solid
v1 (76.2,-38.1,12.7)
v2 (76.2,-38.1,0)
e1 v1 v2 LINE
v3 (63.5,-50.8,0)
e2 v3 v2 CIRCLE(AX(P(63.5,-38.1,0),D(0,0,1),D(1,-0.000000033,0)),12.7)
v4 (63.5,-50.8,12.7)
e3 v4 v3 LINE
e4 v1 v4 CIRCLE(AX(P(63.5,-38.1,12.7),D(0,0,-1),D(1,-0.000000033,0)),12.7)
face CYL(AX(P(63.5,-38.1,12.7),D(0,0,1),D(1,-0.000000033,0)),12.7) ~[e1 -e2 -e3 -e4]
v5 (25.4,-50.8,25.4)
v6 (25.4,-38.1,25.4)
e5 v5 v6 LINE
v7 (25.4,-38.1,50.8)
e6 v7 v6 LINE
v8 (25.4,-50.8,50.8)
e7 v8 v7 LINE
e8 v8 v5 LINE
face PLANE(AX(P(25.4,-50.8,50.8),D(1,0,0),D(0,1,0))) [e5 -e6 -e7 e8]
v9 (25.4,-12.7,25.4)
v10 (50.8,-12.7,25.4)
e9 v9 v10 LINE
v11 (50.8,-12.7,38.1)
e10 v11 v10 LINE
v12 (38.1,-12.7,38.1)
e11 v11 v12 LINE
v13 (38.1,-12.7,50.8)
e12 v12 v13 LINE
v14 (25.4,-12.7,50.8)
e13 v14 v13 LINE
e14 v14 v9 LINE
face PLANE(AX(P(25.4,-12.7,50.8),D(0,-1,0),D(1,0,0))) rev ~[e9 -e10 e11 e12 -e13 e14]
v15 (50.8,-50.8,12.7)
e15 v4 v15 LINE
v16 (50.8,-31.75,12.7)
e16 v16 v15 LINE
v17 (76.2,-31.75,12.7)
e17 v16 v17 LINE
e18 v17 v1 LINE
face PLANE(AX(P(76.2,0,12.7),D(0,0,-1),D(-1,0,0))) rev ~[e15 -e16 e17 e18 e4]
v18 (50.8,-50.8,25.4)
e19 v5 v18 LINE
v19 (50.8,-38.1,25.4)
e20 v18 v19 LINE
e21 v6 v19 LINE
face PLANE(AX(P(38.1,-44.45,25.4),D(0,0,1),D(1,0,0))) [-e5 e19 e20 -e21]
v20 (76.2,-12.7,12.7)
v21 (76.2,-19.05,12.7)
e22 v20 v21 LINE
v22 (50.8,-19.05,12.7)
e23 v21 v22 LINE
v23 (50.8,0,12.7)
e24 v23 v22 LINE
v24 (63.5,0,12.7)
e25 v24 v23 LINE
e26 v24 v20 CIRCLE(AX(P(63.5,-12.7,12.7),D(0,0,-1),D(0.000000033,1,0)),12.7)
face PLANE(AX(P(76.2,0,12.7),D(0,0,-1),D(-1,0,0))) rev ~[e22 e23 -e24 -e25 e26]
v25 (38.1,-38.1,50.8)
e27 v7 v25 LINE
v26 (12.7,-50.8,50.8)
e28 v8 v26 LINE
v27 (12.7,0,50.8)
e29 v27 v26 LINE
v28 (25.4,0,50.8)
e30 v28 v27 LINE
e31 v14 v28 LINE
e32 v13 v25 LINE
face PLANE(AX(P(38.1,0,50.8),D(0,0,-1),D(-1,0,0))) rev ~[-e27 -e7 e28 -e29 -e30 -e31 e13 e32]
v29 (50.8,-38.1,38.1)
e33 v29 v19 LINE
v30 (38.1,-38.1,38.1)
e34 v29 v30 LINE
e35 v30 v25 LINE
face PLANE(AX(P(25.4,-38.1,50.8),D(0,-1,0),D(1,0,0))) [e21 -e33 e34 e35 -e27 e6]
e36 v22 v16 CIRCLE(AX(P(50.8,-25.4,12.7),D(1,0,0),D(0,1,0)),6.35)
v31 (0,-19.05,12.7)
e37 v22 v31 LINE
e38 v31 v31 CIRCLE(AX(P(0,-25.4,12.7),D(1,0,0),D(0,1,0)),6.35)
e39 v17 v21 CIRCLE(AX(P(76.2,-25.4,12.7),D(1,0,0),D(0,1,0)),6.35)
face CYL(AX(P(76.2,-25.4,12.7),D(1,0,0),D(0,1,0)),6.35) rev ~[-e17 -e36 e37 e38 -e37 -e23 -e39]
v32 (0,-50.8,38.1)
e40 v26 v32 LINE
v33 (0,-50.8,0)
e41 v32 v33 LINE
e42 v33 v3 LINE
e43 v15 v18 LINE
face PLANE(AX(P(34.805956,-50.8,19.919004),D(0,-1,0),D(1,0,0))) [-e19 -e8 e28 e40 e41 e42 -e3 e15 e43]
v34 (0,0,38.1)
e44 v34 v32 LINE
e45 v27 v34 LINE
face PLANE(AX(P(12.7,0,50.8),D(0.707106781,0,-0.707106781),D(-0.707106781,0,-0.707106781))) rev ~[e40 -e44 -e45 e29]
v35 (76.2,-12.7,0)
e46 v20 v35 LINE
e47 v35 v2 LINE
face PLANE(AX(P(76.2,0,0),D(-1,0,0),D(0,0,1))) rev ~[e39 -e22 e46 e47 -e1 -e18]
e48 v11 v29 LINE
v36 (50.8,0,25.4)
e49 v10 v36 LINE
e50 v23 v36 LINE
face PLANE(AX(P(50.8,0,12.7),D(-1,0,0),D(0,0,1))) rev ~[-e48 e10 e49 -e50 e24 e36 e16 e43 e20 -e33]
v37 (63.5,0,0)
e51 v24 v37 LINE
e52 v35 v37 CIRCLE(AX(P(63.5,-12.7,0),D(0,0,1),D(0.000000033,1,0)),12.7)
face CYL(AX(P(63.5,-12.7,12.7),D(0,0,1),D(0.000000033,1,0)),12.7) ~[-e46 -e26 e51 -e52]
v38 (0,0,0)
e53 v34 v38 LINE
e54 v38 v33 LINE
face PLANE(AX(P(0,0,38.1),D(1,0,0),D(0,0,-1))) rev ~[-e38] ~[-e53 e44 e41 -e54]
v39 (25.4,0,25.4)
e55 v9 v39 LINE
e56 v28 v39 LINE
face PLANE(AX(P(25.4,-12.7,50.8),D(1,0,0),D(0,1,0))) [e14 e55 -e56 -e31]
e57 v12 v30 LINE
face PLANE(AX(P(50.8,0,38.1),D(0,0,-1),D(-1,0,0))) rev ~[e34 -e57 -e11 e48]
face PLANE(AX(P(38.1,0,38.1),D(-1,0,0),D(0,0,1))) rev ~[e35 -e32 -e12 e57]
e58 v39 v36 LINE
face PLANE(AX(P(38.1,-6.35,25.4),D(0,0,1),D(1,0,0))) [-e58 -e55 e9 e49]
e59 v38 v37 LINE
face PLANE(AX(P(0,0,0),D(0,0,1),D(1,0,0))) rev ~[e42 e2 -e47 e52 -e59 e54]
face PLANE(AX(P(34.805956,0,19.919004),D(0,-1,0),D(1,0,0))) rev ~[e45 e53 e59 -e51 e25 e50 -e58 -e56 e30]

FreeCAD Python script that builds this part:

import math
import FreeCAD as App
import Part
import Sketcher
Q = App.Units.Quantity

doc = App.newDocument("Part")
params = doc.addObject("Spreadsheet::Sheet", "Params")
for row, (alias, value) in enumerate([
    ("sketch1_width", "3 in"),
    ("sketch1_width2", "1 in"),
    ("sketch1_width3", "0.5 in"),
    ("pad1_length", "2 in"),
    ("sketch2_width", "1 in"),
    ("sketch2_height", "0.5 in"),
    ("pocket1_length", "1 in"),
    ("sketch3_radius", "0.5 in"),
    ("sketch4_diameter", "0.5 in"),
], start=1):
    params.set(f"A{row}", alias)
    params.set(f"B{row}", "=" + value)
    params.setAlias(f"B{row}", alias)

body = doc.addObject("PartDesign::Body", "Body")

# Sketch on XZ plane
sketch1 = body.newObject("Sketcher::SketchObject", "Sketch")
sketch1.AttachmentSupport = (doc.getObject("XZ_Plane"), [""])
sketch1.MapMode = "FlatFace"
sketch1.addGeometry(Part.LineSegment(App.Vector(0, 38, 0), App.Vector(0, 0, 0)), False)
sketch1.addGeometry(Part.LineSegment(App.Vector(0, 0, 0), App.Vector(76, 0, 0)), False)
sketch1.addGeometry(Part.LineSegment(App.Vector(76, 0, 0), App.Vector(76, 13, 0)), False)
sketch1.addGeometry(Part.LineSegment(App.Vector(76, 13, 0), App.Vector(51, 13, 0)), False)
sketch1.addGeometry(Part.LineSegment(App.Vector(51, 13, 0), App.Vector(51, 38, 0)), False)
sketch1.addGeometry(Part.LineSegment(App.Vector(51, 38, 0), App.Vector(38, 38, 0)), False)
sketch1.addGeometry(Part.LineSegment(App.Vector(38, 38, 0), App.Vector(38, 51, 0)), False)
sketch1.addGeometry(Part.LineSegment(App.Vector(38, 51, 0), App.Vector(13, 51, 0)), False)
sketch1.addGeometry(Part.LineSegment(App.Vector(13, 51, 0), App.Vector(0, 38, 0)), False)
sketch1.addConstraint(Sketcher.Constraint("Coincident", 0, 2, 1, 1))
sketch1.addConstraint(Sketcher.Constraint("Coincident", 1, 2, 2, 1))
sketch1.addConstraint(Sketcher.Constraint("Coincident", 2, 2, 3, 1))
sketch1.addConstraint(Sketcher.Constraint("Coincident", 3, 2, 4, 1))
sketch1.addConstraint(Sketcher.Constraint("Coincident", 4, 2, 5, 1))
sketch1.addConstraint(Sketcher.Constraint("Coincident", 5, 2, 6, 1))
sketch1.addConstraint(Sketcher.Constraint("Coincident", 6, 2, 7, 1))
sketch1.addConstraint(Sketcher.Constraint("Coincident", 7, 2, 8, 1))
sketch1.addConstraint(Sketcher.Constraint("Coincident", 8, 2, 0, 1))
sketch1.addConstraint(Sketcher.Constraint("Vertical", 0))
sketch1.addConstraint(Sketcher.Constraint("Horizontal", 1))
sketch1.addConstraint(Sketcher.Constraint("Vertical", 2))
sketch1.addConstraint(Sketcher.Constraint("Horizontal", 3))
sketch1.addConstraint(Sketcher.Constraint("Vertical", 4))
sketch1.addConstraint(Sketcher.Constraint("Horizontal", 5))
sketch1.addConstraint(Sketcher.Constraint("Vertical", 6))
sketch1.addConstraint(Sketcher.Constraint("Horizontal", 7))
sketch1.addConstraint(Sketcher.Constraint("Coincident", 0, 2, -1, 1))
sketch1.addConstraint(Sketcher.Constraint("Horizontal", 5, 2, 8, 2))
sketch1.addConstraint(Sketcher.Constraint("Equal", 3, 7))
sketch1.addConstraint(Sketcher.Constraint("Equal", 5, 2))
sketch1.addConstraint(Sketcher.Constraint("Equal", 7, 4))
sketch1.addConstraint(Sketcher.Constraint("Equal", 2, 6))
sketch1.addConstraint(Sketcher.Constraint("DistanceX", 1, 1, 1, 2, Q("3 in")))
sketch1.addConstraint(Sketcher.Constraint("DistanceX", 3, 2, 3, 1, Q("1 in")))
sketch1.addConstraint(Sketcher.Constraint("DistanceX", 5, 2, 5, 1, Q("0.5 in")))
sketch1.setExpression("Constraints[23]", "Params.sketch1_width")
sketch1.setExpression("Constraints[24]", "Params.sketch1_width2")
sketch1.setExpression("Constraints[25]", "Params.sketch1_width3")
pad1 = body.newObject("PartDesign::Pad", "Pad")
pad1.Profile = sketch1
pad1.setExpression("Length", "Params.pad1_length")

# Sketch on XY plane
sketch2 = body.newObject("Sketcher::SketchObject", "Sketch001")
sketch2.AttachmentSupport = (doc.getObject("XY_Plane"), [""])
sketch2.MapMode = "FlatFace"
sketch2.AttachmentOffset = App.Placement(App.Vector(0, 0, 2 * 25.4), App.Rotation())
sketch2.addGeometry(Part.LineSegment(App.Vector(25, -38, 0), App.Vector(25, -51, 0)), False)
sketch2.addGeometry(Part.LineSegment(App.Vector(25, -51, 0), App.Vector(51, -51, 0)), False)
sketch2.addGeometry(Part.LineSegment(App.Vector(51, -51, 0), App.Vector(51, -38, 0)), False)
sketch2.addGeometry(Part.LineSegment(App.Vector(51, -38, 0), App.Vector(25, -38, 0)), False)
sketch2.addGeometry(Part.LineSegment(App.Vector(25, 0, 0), App.Vector(25, -13, 0)), False)
sketch2.addGeometry(Part.LineSegment(App.Vector(25, -13, 0), App.Vector(51, -13, 0)), False)
sketch2.addGeometry(Part.LineSegment(App.Vector(51, -13, 0), App.Vector(51, 0, 0)), False)
sketch2.addGeometry(Part.LineSegment(App.Vector(51, 0, 0), App.Vector(25, 0, 0)), False)
sketch2.addConstraint(Sketcher.Constraint("Coincident", 0, 2, 1, 1))
sketch2.addConstraint(Sketcher.Constraint("Coincident", 1, 2, 2, 1))
sketch2.addConstraint(Sketcher.Constraint("Coincident", 2, 2, 3, 1))
sketch2.addConstraint(Sketcher.Constraint("Coincident", 3, 2, 0, 1))
sketch2.addConstraint(Sketcher.Constraint("Coincident", 4, 2, 5, 1))
sketch2.addConstraint(Sketcher.Constraint("Coincident", 5, 2, 6, 1))
sketch2.addConstraint(Sketcher.Constraint("Coincident", 6, 2, 7, 1))
sketch2.addConstraint(Sketcher.Constraint("Coincident", 7, 2, 4, 1))
sketch2.addConstraint(Sketcher.Constraint("Vertical", 0))
sketch2.addConstraint(Sketcher.Constraint("Horizontal", 1))
sketch2.addConstraint(Sketcher.Constraint("Vertical", 2))
sketch2.addConstraint(Sketcher.Constraint("Horizontal", 3))
sketch2.addConstraint(Sketcher.Constraint("Vertical", 4))
sketch2.addConstraint(Sketcher.Constraint("Horizontal", 5))
sketch2.addConstraint(Sketcher.Constraint("Vertical", 6))
sketch2.addConstraint(Sketcher.Constraint("Horizontal", 7))
sketch2.addConstraint(Sketcher.Constraint("PointOnObject", 6, 2, -1))
sketch2.addConstraint(Sketcher.Constraint("Vertical", 3, 2, 4, 2))
sketch2.addConstraint(Sketcher.Constraint("Vertical", 2, 2, 5, 2))
sketch2.addConstraint(Sketcher.Constraint("Equal", 2, 4))
sketch2.addConstraint(Sketcher.Constraint("DistanceX", 1, 1, 1, 2, Q("1 in")))
sketch2.addConstraint(Sketcher.Constraint("DistanceY", 0, 2, 0, 1, Q("0.5 in")))
sketch2.addConstraint(Sketcher.Constraint("DistanceX", -1, 1, 0, 2, Q("1 in")))
sketch2.addConstraint(Sketcher.Constraint("DistanceY", 0, 2, -1, 1, Q("2 in")))
sketch2.setExpression("Constraints[20]", "Params.sketch2_width")
sketch2.setExpression("Constraints[21]", "Params.sketch2_height")
pocket1 = body.newObject("PartDesign::Pocket", "Pocket")
pocket1.Profile = sketch2
pocket1.setExpression("Length", "Params.pocket1_length")

# Sketch on XY plane
sketch3 = body.newObject("Sketcher::SketchObject", "Sketch002")
sketch3.AttachmentSupport = (doc.getObject("XY_Plane"), [""])
sketch3.MapMode = "FlatFace"
sketch3.AttachmentOffset = App.Placement(App.Vector(0, 0, 0.5 * 25.4), App.Rotation())
sketch3.addGeometry(Part.ArcOfCircle(Part.Circle(App.Vector(63, -13, 0), App.Vector(0, 0, 1), 13), math.radians(0), math.radians(90)), False)
sketch3.addGeometry(Part.LineSegment(App.Vector(76, -13, 0), App.Vector(76, 0, 0)), False)
sketch3.addGeometry(Part.LineSegment(App.Vector(76, 0, 0), App.Vector(64, 0, 0)), False)
sketch3.addGeometry(Part.ArcOfCircle(Part.Circle(App.Vector(63, -38, 0), App.Vector(0, 0, 1), 13), math.radians(-90), math.radians(0)), False)
sketch3.addGeometry(Part.LineSegment(App.Vector(64, -51, 0), App.Vector(76, -51, 0)), False)
sketch3.addGeometry(Part.LineSegment(App.Vector(76, -51, 0), App.Vector(76, -38, 0)), False)
sketch3.addConstraint(Sketcher.Constraint("Tangent", 0, 1, 1, 1))
sketch3.addConstraint(Sketcher.Constraint("Coincident", 1, 2, 2, 1))
sketch3.addConstraint(Sketcher.Constraint("Tangent", 2, 2, 0, 2))
sketch3.addConstraint(Sketcher.Constraint("Tangent", 3, 1, 4, 1))
sketch3.addConstraint(Sketcher.Constraint("Coincident", 4, 2, 5, 1))
sketch3.addConstraint(Sketcher.Constraint("Tangent", 5, 2, 3, 2))
sketch3.addConstraint(Sketcher.Constraint("Vertical", 1))
sketch3.addConstraint(Sketcher.Constraint("Horizontal", 2))
sketch3.addConstraint(Sketcher.Constraint("Horizontal", 4))
sketch3.addConstraint(Sketcher.Constraint("Vertical", 5))
sketch3.addConstraint(Sketcher.Constraint("Equal", 0, 3))
sketch3.addConstraint(Sketcher.Constraint("PointOnObject", 1, 2, -1))
sketch3.addConstraint(Sketcher.Constraint("Vertical", 0, 3, 3, 3))
sketch3.addConstraint(Sketcher.Constraint("Radius", 0, Q("0.5 in")))
sketch3.addConstraint(Sketcher.Constraint("DistanceX", -1, 1, 0, 1, Q("3 in")))
sketch3.addConstraint(Sketcher.Constraint("DistanceY", 3, 1, -1, 1, Q("2 in")))
sketch3.setExpression("Constraints[13]", "Params.sketch3_radius")
pocket2 = body.newObject("PartDesign::Pocket", "Pocket001")
pocket2.Profile = sketch3
pocket2.Type = "ThroughAll"

# Sketch on YZ plane
sketch4 = body.newObject("Sketcher::SketchObject", "Sketch003")
sketch4.AttachmentSupport = (doc.getObject("YZ_Plane"), [""])
sketch4.MapMode = "FlatFace"
sketch4.AttachmentOffset = App.Placement(App.Vector(0, 0, 3 * 25.4), App.Rotation())
sketch4.addGeometry(Part.Circle(App.Vector(-25, 13, 0), App.Vector(0, 0, 1), 6), False)
sketch4.addConstraint(Sketcher.Constraint("Diameter", 0, Q("0.5 in")))
sketch4.addConstraint(Sketcher.Constraint("DistanceX", 0, 3, -1, 1, Q("1 in")))
sketch4.addConstraint(Sketcher.Constraint("DistanceY", -1, 1, 0, 3, Q("0.5 in")))
sketch4.setExpression("Constraints[0]", "Params.sketch4_diameter")
pocket3 = body.newObject("PartDesign::Pocket", "Pocket002")
pocket3.Profile = sketch4
pocket3.Type = "ThroughAll"

doc.recompute()
